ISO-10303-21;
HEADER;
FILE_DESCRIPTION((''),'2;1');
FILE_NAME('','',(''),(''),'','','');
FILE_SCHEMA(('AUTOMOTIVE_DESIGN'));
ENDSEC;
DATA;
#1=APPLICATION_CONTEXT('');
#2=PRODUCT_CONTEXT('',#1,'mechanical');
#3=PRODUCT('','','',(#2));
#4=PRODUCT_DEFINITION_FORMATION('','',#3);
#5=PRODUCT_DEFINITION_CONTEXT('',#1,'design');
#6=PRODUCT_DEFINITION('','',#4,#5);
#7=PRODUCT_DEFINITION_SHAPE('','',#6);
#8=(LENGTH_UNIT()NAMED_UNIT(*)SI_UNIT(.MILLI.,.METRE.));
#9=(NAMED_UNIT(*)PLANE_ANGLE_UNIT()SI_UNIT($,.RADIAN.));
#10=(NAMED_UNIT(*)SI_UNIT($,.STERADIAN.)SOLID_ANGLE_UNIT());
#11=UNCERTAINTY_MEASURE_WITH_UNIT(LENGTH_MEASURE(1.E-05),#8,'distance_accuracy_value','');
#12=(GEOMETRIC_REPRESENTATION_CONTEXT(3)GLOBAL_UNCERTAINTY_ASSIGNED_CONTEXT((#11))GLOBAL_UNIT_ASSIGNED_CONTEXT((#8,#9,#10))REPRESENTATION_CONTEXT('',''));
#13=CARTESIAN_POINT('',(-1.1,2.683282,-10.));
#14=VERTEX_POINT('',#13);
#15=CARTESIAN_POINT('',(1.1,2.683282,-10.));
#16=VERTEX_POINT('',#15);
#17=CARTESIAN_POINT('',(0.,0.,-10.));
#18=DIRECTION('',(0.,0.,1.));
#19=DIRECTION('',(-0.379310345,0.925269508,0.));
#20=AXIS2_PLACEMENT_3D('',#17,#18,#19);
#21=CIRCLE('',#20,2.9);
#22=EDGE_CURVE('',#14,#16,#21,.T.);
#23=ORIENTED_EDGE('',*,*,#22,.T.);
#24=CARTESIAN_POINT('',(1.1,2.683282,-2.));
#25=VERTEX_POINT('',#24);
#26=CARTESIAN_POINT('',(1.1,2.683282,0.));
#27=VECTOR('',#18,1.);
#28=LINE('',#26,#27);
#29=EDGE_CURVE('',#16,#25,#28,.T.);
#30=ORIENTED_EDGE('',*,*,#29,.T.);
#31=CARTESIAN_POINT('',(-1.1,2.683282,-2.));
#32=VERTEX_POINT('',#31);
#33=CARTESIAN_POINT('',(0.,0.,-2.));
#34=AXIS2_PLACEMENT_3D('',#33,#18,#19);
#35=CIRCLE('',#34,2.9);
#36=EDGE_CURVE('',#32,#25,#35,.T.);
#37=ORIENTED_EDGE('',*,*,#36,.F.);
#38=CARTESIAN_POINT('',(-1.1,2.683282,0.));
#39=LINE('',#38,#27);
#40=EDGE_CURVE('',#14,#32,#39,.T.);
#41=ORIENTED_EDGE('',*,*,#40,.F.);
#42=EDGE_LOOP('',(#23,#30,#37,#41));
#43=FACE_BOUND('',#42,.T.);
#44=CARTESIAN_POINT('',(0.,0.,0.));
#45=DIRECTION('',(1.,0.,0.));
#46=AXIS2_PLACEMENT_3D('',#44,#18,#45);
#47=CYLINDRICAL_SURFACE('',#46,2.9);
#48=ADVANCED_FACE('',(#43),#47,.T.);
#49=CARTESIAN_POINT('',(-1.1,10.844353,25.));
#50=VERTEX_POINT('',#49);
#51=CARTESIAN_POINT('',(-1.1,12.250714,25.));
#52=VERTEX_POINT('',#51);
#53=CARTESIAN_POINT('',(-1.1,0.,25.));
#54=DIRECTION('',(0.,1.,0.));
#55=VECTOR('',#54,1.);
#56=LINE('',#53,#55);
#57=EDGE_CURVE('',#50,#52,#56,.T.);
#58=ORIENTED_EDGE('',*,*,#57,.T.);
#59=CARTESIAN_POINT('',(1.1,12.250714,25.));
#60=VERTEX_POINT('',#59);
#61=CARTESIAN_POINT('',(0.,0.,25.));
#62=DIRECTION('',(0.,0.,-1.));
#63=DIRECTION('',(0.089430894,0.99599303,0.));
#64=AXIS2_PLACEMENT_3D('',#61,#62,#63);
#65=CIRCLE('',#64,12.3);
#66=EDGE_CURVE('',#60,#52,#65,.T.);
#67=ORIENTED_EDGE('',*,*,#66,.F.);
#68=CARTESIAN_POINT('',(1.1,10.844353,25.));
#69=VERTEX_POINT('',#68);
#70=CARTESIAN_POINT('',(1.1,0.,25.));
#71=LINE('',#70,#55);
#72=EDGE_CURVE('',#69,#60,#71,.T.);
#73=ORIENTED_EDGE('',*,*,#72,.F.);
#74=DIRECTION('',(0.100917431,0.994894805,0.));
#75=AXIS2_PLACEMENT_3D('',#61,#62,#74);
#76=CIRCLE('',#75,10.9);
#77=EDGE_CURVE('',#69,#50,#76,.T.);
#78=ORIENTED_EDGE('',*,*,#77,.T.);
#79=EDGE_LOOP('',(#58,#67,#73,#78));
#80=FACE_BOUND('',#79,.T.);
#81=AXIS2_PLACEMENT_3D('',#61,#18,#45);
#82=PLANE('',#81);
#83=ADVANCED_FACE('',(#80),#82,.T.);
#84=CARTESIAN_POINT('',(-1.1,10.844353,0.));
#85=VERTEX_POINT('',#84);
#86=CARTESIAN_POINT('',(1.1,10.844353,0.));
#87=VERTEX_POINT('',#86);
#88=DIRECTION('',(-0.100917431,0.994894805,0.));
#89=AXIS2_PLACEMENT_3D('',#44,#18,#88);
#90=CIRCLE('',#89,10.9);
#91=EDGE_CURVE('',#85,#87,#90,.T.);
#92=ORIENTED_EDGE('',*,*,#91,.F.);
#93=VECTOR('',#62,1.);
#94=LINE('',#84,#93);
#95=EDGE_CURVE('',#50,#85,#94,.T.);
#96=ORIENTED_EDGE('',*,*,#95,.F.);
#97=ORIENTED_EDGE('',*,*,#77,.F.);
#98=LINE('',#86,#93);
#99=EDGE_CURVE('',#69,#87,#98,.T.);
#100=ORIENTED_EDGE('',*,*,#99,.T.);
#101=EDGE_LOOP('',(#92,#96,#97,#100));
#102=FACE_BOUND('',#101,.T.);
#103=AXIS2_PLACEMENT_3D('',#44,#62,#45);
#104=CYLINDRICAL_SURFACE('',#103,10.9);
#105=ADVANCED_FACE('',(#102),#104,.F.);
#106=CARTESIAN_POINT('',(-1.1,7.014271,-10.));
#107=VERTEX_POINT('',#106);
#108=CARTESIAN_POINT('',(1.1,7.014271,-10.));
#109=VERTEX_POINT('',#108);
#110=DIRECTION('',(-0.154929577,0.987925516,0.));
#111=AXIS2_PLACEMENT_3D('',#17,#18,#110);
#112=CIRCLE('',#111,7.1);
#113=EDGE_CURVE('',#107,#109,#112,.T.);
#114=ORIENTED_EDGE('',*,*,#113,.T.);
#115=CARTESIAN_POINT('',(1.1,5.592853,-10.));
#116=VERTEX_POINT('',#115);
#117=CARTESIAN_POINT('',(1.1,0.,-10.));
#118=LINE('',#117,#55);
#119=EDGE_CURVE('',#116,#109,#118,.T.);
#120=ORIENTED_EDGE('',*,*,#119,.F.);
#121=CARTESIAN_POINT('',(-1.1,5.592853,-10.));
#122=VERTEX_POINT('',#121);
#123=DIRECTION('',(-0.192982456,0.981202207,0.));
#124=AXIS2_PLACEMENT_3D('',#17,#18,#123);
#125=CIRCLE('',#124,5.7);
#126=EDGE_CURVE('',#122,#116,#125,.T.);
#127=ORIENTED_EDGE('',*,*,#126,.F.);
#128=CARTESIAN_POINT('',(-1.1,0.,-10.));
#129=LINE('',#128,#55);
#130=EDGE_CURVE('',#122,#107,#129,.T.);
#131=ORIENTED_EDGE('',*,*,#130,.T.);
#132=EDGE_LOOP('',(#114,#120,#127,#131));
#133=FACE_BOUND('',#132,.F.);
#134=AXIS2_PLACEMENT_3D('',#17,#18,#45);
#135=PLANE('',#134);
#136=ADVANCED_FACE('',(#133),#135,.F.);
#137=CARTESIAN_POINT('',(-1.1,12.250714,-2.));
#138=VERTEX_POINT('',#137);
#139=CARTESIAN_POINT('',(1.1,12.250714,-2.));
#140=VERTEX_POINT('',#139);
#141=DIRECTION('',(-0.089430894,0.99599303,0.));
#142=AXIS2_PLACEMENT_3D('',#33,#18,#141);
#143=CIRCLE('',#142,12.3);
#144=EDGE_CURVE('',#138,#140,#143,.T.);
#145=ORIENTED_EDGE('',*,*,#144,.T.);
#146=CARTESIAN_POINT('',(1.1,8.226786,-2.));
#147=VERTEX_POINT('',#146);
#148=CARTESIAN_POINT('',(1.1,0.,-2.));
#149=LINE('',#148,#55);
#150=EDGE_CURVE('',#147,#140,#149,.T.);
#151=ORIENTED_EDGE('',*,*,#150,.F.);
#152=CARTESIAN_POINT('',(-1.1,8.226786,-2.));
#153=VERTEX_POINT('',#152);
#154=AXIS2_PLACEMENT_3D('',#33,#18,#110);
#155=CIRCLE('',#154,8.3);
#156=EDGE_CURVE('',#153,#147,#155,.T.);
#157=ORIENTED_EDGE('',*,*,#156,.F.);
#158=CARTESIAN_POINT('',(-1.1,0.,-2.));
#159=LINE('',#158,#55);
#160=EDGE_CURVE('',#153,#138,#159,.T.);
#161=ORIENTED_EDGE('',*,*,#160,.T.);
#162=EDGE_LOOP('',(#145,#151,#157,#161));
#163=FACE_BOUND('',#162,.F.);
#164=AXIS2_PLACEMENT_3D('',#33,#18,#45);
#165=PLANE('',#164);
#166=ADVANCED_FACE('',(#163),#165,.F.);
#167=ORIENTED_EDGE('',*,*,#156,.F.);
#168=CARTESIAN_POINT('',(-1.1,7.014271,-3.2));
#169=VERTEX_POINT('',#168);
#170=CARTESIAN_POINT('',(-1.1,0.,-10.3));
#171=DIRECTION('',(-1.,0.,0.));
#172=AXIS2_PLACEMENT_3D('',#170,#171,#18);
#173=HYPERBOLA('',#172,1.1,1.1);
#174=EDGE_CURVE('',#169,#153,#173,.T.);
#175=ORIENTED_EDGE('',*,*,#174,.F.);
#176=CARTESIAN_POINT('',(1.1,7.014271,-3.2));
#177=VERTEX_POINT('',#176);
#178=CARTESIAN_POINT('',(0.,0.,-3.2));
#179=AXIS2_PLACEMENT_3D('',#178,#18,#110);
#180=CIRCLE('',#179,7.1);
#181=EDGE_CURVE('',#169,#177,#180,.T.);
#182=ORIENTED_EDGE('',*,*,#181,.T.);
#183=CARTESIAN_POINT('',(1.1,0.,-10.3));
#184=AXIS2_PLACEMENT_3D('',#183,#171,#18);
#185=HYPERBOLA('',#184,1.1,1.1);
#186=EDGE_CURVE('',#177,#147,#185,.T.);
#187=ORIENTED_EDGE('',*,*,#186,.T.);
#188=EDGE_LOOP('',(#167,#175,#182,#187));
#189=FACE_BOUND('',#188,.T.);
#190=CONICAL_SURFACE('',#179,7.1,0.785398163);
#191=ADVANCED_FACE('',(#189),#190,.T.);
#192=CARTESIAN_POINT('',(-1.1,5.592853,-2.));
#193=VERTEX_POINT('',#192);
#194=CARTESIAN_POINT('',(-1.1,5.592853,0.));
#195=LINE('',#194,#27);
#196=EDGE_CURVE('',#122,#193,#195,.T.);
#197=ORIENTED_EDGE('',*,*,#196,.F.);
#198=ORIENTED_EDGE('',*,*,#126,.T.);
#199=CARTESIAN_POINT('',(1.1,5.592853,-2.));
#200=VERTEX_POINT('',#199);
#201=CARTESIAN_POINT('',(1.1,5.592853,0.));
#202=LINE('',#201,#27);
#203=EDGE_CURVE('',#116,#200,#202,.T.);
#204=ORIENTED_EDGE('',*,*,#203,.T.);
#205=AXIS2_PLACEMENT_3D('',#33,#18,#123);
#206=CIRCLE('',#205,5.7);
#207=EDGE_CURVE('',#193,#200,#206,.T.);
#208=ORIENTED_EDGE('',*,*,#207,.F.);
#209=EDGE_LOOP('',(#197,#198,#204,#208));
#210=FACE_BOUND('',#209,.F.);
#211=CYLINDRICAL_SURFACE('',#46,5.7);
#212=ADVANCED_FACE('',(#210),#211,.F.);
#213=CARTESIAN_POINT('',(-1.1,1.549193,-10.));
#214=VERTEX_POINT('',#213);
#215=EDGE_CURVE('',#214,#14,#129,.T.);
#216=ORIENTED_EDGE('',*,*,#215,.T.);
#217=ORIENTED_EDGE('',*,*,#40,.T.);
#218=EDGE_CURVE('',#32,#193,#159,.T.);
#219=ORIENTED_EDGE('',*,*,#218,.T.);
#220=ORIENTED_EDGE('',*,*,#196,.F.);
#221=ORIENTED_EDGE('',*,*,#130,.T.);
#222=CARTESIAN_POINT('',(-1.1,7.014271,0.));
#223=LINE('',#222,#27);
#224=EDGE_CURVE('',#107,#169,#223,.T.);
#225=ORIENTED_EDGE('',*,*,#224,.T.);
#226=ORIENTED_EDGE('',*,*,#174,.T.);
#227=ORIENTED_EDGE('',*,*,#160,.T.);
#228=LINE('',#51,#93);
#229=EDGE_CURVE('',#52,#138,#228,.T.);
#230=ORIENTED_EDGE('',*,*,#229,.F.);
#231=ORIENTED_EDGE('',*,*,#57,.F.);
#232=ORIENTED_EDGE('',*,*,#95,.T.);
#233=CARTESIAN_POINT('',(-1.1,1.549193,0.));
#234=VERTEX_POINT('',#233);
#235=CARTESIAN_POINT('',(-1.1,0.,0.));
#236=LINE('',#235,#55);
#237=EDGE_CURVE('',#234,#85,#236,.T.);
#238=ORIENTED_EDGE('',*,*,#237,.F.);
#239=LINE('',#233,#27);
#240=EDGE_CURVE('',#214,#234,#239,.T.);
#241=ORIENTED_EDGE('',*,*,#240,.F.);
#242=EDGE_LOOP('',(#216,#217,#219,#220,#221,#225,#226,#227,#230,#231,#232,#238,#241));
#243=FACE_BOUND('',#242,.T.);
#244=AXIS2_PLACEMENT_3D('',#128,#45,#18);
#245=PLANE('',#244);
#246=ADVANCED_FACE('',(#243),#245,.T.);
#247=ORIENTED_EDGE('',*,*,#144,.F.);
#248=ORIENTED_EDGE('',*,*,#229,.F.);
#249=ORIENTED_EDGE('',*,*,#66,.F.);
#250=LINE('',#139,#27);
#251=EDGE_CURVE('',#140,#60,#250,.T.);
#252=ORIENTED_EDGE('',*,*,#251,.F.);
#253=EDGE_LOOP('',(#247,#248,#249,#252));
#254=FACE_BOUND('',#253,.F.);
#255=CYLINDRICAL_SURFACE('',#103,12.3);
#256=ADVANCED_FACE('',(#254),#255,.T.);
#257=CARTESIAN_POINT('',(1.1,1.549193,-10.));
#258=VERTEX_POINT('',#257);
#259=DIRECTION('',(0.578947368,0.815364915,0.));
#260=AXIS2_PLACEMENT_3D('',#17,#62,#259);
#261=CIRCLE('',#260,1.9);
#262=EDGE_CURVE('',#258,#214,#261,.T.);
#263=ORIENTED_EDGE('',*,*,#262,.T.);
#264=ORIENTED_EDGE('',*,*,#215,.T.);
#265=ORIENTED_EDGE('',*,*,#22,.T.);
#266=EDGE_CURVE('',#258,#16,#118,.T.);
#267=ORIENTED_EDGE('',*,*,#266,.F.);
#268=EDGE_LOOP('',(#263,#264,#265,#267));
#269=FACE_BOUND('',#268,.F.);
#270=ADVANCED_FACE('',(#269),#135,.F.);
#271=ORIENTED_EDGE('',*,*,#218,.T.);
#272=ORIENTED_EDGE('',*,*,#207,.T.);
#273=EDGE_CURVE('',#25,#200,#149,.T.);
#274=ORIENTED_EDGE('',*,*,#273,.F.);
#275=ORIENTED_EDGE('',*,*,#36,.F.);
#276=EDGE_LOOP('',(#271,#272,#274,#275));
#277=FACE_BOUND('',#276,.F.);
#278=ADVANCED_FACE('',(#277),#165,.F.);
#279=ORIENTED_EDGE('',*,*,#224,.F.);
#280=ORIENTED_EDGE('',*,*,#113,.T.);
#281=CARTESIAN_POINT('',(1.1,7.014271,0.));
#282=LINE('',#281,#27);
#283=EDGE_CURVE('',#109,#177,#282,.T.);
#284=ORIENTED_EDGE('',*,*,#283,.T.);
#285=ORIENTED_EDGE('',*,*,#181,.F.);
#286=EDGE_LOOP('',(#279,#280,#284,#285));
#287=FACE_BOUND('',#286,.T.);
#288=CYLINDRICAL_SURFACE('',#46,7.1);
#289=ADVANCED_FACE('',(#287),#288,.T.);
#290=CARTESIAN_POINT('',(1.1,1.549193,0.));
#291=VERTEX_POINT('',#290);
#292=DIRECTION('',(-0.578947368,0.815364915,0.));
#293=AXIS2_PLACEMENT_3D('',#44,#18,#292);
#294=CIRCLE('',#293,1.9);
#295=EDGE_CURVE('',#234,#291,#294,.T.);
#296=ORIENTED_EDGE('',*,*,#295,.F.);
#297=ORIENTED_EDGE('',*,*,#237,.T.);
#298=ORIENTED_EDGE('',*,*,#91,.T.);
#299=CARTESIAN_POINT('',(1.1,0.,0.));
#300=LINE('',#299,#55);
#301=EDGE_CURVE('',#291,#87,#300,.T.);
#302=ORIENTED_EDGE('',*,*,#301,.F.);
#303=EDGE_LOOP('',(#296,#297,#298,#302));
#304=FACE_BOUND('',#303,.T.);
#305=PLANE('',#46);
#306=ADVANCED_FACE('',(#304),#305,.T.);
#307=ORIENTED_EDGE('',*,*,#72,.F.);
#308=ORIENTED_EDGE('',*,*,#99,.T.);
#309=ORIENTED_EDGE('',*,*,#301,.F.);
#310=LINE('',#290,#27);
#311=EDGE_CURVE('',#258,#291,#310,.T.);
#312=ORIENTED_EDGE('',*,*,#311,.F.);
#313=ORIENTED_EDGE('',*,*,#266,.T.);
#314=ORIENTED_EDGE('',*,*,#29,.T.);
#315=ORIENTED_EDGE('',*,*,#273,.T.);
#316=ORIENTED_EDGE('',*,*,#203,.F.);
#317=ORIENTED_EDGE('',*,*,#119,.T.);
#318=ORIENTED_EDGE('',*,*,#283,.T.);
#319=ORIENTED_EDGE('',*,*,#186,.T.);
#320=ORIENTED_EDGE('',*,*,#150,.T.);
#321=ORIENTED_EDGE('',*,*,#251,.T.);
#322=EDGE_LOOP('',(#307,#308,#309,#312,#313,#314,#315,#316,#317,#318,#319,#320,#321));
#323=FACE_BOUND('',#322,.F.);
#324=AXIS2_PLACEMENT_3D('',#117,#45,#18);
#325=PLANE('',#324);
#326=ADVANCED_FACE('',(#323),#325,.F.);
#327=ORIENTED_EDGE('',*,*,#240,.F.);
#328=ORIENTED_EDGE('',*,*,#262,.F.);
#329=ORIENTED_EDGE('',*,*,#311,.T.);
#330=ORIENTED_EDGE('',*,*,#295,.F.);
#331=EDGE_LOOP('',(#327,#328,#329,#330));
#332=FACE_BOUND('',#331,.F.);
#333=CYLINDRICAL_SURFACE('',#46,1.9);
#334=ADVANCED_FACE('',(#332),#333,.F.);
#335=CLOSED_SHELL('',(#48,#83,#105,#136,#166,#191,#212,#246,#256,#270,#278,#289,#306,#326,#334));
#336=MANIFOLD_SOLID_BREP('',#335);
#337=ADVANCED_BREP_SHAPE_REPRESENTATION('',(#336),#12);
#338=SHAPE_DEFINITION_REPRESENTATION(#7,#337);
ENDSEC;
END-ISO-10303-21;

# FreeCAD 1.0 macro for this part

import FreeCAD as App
import Part
import Sketcher

V = App.Vector


def edges_at(feature, points):
    """Names of the edges that pass closest to the given points."""
    edges = feature.Shape.Edges
    near = lambda p: min(range(len(edges)), key=lambda i: edges[i].distToShape(Part.Vertex(*p))[0])
    return sorted({f"Edge{near(p) + 1}" for p in points})

doc = App.newDocument("Part")
params = doc.addObject("Spreadsheet::Sheet", "Params")
for row, (alias, value) in enumerate([
    ("sketch1_diameter", "24.6 mm"),
    ("sketch1_diameter2", "3.8 mm"),
    ("pad1_length", "2 mm"),
    ("sketch2_diameter", "14.2 mm"),
    ("sketch2_diameter2", "11.4 mm"),
    ("sketch2_diameter3", "5.8 mm"),
    ("sketch2_diameter4", "3.8 mm"),
    ("pad2_length", "10 mm"),
    ("sketch3_diameter", "24.6 mm"),
    ("sketch3_diameter2", "21.8 mm"),
    ("pad3_length", "25 mm"),
    ("sketch4_height", "35 mm"),
    ("sketch4_width", "2.2 mm"),
    ("chamfer_size", "1.2 mm"),
], start=1):
    params.set(f"A{row}", alias)
    params.set(f"B{row}", "=" + value)
    params.setAlias(f"B{row}", alias)

body = doc.addObject("PartDesign::Body", "Body")

# Sketch on XY plane
sketch1 = body.newObject("Sketcher::SketchObject", "Sketch")
sketch1.AttachmentSupport = (doc.getObject("XY_Plane"), [""])
sketch1.MapMode = "FlatFace"
sketch1.addGeometry(Part.Circle(V(0, 0, 0), V(0, 0, 1), 12.3), False)
sketch1.addGeometry(Part.Circle(V(0, 0, 0), V(0, 0, 1), 1.9), False)
sketch1.addConstraint(Sketcher.Constraint("Coincident", 0, 3, -1, 1))
sketch1.addConstraint(Sketcher.Constraint("Coincident", 1, 3, -1, 1))
sketch1.addConstraint(Sketcher.Constraint("Diameter", 0, 24.6))
sketch1.addConstraint(Sketcher.Constraint("Diameter", 1, 3.8))
sketch1.setExpression("Constraints[2]", "Params.sketch1_diameter")
sketch1.setExpression("Constraints[3]", "Params.sketch1_diameter2")
pad1 = body.newObject("PartDesign::Pad", "Pad")
pad1.Profile = sketch1
pad1.setExpression("Length", "Params.pad1_length")
pad1.Reversed = True

# Sketch on XY plane
sketch2 = body.newObject("Sketcher::SketchObject", "Sketch001")
sketch2.AttachmentSupport = (doc.getObject("XY_Plane"), [""])
sketch2.MapMode = "FlatFace"
sketch2.addGeometry(Part.Circle(V(0, 0, 0), V(0, 0, 1), 7.1), False)
sketch2.addGeometry(Part.Circle(V(0, 0, 0), V(0, 0, 1), 5.7), False)
sketch2.addGeometry(Part.Circle(V(0, 0, 0), V(0, 0, 1), 2.9), False)
sketch2.addGeometry(Part.Circle(V(0, 0, 0), V(0, 0, 1), 1.9), False)
sketch2.addConstraint(Sketcher.Constraint("Coincident", 0, 3, -1, 1))
sketch2.addConstraint(Sketcher.Constraint("Coincident", 1, 3, -1, 1))
sketch2.addConstraint(Sketcher.Constraint("Coincident", 2, 3, -1, 1))
sketch2.addConstraint(Sketcher.Constraint("Coincident", 3, 3, -1, 1))
sketch2.addConstraint(Sketcher.Constraint("Diameter", 0, 14.2))
sketch2.addConstraint(Sketcher.Constraint("Diameter", 1, 11.4))
sketch2.addConstraint(Sketcher.Constraint("Diameter", 2, 5.8))
sketch2.addConstraint(Sketcher.Constraint("Diameter", 3, 3.8))
sketch2.setExpression("Constraints[4]", "Params.sketch2_diameter")
sketch2.setExpression("Constraints[5]", "Params.sketch2_diameter2")
sketch2.setExpression("Constraints[6]", "Params.sketch2_diameter3")
sketch2.setExpression("Constraints[7]", "Params.sketch2_diameter4")
pad2 = body.newObject("PartDesign::Pad", "Pad001")
pad2.Profile = sketch2
pad2.setExpression("Length", "Params.pad2_length")
pad2.Reversed = True

# Sketch on XY plane
sketch3 = body.newObject("Sketcher::SketchObject", "Sketch002")
sketch3.AttachmentSupport = (doc.getObject("XY_Plane"), [""])
sketch3.MapMode = "FlatFace"
sketch3.addGeometry(Part.Circle(V(0, 0, 0), V(0, 0, 1), 12), False)
sketch3.addGeometry(Part.Circle(V(0, 0, 0), V(0, 0, 1), 11), False)
sketch3.addConstraint(Sketcher.Constraint("Coincident", 0, 3, -1, 1))
sketch3.addConstraint(Sketcher.Constraint("Coincident", 1, 3, -1, 1))
sketch3.addConstraint(Sketcher.Constraint("Diameter", 0, 24.6))
sketch3.addConstraint(Sketcher.Constraint("Diameter", 1, 21.8))
sketch3.setExpression("Constraints[2]", "Params.sketch3_diameter")
sketch3.setExpression("Constraints[3]", "Params.sketch3_diameter2")
pad3 = body.newObject("PartDesign::Pad", "Pad002")
pad3.Profile = sketch3
pad3.setExpression("Length", "Params.pad3_length")

# Sketch on XZ plane
sketch4 = body.newObject("Sketcher::SketchObject", "Sketch003")
sketch4.AttachmentSupport = (doc.getObject("XZ_Plane"), [""])
sketch4.MapMode = "FlatFace"
sketch4.addGeometry(Part.LineSegment(V(-1.1, 25, 0), V(-1.1, -10, 0)), False)
sketch4.addGeometry(Part.LineSegment(V(-1.1, -10, 0), V(1.1, -10, 0)), False)
sketch4.addGeometry(Part.LineSegment(V(1.1, -10, 0), V(1.1, 25, 0)), False)
sketch4.addGeometry(Part.LineSegment(V(1.1, 25, 0), V(-1.1, 25, 0)), False)
sketch4.addConstraint(Sketcher.Constraint("Coincident", 0, 2, 1, 1))
sketch4.addConstraint(Sketcher.Constraint("Coincident", 1, 2, 2, 1))
sketch4.addConstraint(Sketcher.Constraint("Coincident", 2, 2, 3, 1))
sketch4.addConstraint(Sketcher.Constraint("Coincident", 3, 2, 0, 1))
sketch4.addConstraint(Sketcher.Constraint("Vertical", 0))
sketch4.addConstraint(Sketcher.Constraint("Horizontal", 1))
sketch4.addConstraint(Sketcher.Constraint("Vertical", 2))
sketch4.addConstraint(Sketcher.Constraint("Horizontal", 3))
sketch4.addConstraint(Sketcher.Constraint("DistanceY", 0, 2, 0, 1, 35.0))
sketch4.addConstraint(Sketcher.Constraint("DistanceX", 1, 1, 1, 2, 2.2))
sketch4.addConstraint(Sketcher.Constraint("DistanceY", 0, 2, -1, 1, 10.0))
sketch4.addConstraint(Sketcher.Constraint("DistanceX", 0, 2, -1, 1, 1.1))
sketch4.setExpression("Constraints[8]", "Params.sketch4_height")
sketch4.setExpression("Constraints[9]", "Params.sketch4_width")
pocket1 = body.newObject("PartDesign::Pocket", "Pocket")
pocket1.Profile = sketch4
pocket1.Type = "ThroughAll"
doc.recompute()

chamfer = body.newObject("PartDesign::Chamfer", "Chamfer")
chamfer.Base = (pocket1, edges_at(pocket1, [(0, -7.1, -2)]))
chamfer.setExpression("Size", "Params.chamfer_size")

doc.recompute()
